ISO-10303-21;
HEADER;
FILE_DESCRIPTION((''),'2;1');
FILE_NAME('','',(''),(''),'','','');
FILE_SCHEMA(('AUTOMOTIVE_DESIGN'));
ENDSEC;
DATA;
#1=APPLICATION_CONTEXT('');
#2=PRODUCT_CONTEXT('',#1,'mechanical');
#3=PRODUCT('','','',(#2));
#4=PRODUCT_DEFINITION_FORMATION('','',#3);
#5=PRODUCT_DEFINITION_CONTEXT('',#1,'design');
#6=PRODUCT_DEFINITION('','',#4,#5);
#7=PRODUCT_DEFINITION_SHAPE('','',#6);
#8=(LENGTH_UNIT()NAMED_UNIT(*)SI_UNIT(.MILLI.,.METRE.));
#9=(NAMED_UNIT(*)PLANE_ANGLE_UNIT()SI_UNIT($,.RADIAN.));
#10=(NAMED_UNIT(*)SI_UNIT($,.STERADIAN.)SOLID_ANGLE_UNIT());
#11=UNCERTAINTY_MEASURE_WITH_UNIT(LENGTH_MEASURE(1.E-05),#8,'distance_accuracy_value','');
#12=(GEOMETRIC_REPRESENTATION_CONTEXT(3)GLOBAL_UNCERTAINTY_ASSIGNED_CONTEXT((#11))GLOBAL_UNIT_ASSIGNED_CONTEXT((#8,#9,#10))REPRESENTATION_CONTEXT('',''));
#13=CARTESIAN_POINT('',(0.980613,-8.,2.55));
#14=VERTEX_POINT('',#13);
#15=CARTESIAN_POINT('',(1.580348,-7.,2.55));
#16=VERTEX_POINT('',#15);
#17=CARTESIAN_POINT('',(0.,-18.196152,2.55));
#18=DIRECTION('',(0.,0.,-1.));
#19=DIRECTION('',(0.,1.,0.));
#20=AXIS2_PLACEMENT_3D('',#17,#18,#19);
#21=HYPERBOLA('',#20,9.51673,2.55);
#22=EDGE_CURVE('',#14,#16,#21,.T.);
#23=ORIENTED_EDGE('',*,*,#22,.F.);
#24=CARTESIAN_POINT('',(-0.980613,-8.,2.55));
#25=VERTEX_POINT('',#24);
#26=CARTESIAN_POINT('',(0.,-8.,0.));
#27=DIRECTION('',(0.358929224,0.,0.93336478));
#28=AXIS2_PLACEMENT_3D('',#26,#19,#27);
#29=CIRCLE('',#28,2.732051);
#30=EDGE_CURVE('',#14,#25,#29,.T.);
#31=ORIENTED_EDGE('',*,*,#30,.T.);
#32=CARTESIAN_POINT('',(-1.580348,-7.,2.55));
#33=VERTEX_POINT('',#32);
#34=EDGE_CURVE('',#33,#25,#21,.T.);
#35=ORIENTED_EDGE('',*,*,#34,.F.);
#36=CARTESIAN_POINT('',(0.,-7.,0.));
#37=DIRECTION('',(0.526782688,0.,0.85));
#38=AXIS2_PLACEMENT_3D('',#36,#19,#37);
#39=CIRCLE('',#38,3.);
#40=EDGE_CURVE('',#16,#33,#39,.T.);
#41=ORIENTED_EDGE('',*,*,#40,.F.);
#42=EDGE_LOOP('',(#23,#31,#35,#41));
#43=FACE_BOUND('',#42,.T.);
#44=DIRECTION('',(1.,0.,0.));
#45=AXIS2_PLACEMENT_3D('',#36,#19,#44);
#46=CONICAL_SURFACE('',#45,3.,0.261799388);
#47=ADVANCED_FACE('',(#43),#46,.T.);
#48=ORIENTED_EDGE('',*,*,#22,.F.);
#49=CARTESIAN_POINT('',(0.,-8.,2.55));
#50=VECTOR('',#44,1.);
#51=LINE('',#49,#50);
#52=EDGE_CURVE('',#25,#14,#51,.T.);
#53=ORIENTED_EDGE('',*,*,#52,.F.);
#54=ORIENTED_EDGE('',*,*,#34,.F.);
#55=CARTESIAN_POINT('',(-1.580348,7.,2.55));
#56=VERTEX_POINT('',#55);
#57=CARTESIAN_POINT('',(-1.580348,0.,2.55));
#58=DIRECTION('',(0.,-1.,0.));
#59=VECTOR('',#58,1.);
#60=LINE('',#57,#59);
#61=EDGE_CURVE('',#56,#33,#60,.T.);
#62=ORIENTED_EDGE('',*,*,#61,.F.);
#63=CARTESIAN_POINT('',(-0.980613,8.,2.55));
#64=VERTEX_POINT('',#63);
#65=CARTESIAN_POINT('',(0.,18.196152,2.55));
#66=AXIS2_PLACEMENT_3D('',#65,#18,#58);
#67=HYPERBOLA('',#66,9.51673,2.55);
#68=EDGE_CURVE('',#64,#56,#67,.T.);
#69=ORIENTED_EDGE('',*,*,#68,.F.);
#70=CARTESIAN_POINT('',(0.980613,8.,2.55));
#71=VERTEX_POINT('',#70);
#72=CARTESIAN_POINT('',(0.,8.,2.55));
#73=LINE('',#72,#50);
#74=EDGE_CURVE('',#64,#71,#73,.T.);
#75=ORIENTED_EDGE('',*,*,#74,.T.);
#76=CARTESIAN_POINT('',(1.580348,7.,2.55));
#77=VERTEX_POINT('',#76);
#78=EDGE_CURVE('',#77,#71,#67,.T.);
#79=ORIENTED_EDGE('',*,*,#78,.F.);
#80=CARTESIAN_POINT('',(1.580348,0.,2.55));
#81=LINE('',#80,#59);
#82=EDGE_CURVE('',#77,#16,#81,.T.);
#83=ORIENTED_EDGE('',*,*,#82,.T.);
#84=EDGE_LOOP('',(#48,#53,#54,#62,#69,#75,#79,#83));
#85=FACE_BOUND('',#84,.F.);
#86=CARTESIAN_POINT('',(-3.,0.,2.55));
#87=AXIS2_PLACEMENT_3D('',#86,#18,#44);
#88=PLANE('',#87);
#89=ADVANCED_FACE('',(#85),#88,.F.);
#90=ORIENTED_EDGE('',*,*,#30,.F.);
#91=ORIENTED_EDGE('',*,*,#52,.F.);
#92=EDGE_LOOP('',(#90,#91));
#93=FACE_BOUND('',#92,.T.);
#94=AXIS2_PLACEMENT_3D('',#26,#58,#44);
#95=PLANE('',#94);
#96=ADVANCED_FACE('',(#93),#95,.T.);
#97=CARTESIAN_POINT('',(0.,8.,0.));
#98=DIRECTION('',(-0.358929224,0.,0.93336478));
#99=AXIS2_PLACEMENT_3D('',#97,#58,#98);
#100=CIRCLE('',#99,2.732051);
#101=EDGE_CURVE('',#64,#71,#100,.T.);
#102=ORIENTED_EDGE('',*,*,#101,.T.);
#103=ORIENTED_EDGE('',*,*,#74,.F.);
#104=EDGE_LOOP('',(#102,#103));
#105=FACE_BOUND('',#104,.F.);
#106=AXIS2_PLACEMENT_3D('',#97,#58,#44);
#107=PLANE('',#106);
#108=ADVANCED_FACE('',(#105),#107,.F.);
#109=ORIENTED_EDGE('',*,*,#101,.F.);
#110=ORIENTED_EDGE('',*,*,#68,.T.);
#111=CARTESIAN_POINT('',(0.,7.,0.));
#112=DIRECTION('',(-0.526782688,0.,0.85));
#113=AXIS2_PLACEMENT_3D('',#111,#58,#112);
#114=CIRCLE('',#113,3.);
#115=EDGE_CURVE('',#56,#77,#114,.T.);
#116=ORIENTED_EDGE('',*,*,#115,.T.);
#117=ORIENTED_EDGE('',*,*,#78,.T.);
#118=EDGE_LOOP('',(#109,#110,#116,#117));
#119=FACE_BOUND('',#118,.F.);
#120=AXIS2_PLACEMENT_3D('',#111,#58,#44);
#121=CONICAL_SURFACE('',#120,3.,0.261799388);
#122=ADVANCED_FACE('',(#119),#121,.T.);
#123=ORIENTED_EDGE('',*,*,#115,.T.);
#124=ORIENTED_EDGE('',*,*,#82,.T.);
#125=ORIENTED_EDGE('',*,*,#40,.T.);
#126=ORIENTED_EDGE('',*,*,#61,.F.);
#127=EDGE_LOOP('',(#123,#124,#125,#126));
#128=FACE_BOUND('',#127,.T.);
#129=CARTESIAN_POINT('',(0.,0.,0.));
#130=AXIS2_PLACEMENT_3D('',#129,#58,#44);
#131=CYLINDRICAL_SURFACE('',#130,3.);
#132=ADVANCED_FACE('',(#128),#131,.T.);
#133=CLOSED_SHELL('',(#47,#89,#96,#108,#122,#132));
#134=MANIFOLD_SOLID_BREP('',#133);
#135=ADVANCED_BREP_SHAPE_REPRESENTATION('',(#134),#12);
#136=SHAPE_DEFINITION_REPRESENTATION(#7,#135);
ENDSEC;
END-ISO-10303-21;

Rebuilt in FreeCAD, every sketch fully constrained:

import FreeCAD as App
import Part
import Sketcher
from FreeCAD import Vector


def edges_at(feature, points):
    """Names of the edges that pass closest to the given points."""
    edges = feature.Shape.Edges
    near = lambda p: min(range(len(edges)), key=lambda i: edges[i].distToShape(Part.Vertex(*p))[0])
    return sorted({f"Edge{near(p) + 1}" for p in points})


def add_polygon(sketch, points):
    """Adds a closed chain of lines whose ends are joined by coincident constraints."""
    first, n = sketch.GeometryCount, len(points)
    for a, b in zip(points, points[1:] + points[:1]):
        sketch.addGeometry(Part.LineSegment(App.Vector(*a, 0), App.Vector(*b, 0)), False)
    for i in range(n):
        sketch.addConstraint(Sketcher.Constraint("Coincident", first + i, 2, first + (i + 1) % n, 1))

doc = App.newDocument("Part")
body = doc.addObject("PartDesign::Body", "Body")

# Sketch on XZ plane
sketch1 = body.newObject("Sketcher::SketchObject", "Sketch")
sketch1.AttachmentSupport = (doc.getObject("XZ_Plane"), [""])
sketch1.MapMode = "FlatFace"
sketch1.addGeometry(Part.Circle(Vector(0, 0, 0), Vector(0, 0, 1), 3), False)
sketch1.addConstraint(Sketcher.Constraint("Coincident", 0, 3, -1, 1))
sketch1.addConstraint(Sketcher.Constraint("Diameter", 0, 6.0))
pad1 = body.newObject("PartDesign::Pad", "Pad")
pad1.Profile = sketch1
pad1.Length = 16
pad1.Midplane = True
doc.recompute()

chamfer = body.newObject("PartDesign::Chamfer", "Chamfer")
chamfer.Base = (pad1, edges_at(pad1, [(-3, -8, 0), (-3, 8, 0)]))
chamfer.ChamferType = "Two distances"
chamfer.Size = 1
chamfer.Size2 = 0.267949

# Sketch on XZ plane
sketch2 = body.newObject("Sketcher::SketchObject", "Sketch001")
sketch2.AttachmentSupport = (doc.getObject("XZ_Plane"), [""])
sketch2.MapMode = "FlatFace"
add_polygon(sketch2, [(-3, 9), (-3, 3), (3, 3), (3, 9)])  # lines 0-3
sketch2.addConstraint(Sketcher.Constraint("Vertical", 0))
sketch2.addConstraint(Sketcher.Constraint("Horizontal", 1))
sketch2.addConstraint(Sketcher.Constraint("Vertical", 2))
sketch2.addConstraint(Sketcher.Constraint("Horizontal", 3))
sketch2.addConstraint(Sketcher.Constraint("Equal", 3, 0))
sketch2.addConstraint(Sketcher.Constraint("DistanceX", 1, 1, 1, 2, 6.0))
sketch2.addConstraint(Sketcher.Constraint("DistanceX", 0, 2, -1, 1, 3.0))
sketch2.addConstraint(Sketcher.Constraint("DistanceY", -1, 1, 0, 2, 2.55))
pocket1 = body.newObject("PartDesign::Pocket", "Pocket")
pocket1.Profile = sketch2
pocket1.Length = 16
pocket1.Midplane = True

doc.recompute()
